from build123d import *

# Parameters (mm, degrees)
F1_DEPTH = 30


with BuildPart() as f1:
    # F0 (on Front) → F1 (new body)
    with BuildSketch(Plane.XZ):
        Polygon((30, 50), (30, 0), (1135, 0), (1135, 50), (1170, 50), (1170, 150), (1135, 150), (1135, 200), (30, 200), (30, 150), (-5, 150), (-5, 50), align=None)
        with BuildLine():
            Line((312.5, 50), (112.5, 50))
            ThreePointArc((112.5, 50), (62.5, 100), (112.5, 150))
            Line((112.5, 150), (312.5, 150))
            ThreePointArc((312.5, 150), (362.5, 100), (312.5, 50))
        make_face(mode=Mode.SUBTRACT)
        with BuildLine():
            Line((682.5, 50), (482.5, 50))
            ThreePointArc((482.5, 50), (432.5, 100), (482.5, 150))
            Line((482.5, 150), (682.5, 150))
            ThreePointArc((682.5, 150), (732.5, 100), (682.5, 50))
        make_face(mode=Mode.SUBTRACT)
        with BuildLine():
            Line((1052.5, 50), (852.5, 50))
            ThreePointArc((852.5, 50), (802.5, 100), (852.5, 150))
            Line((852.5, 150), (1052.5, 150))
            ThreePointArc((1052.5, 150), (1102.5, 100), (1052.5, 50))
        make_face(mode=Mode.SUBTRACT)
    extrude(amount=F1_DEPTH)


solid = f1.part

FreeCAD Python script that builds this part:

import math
import FreeCAD as App
import Part
import Sketcher

V = App.Vector


def add_polygon(sketch, points):
    """Adds a closed chain of lines whose ends are joined by coincident constraints."""
    first, n = sketch.GeometryCount, len(points)
    for a, b in zip(points, points[1:] + points[:1]):
        sketch.addGeometry(Part.LineSegment(App.Vector(*a, 0), App.Vector(*b, 0)), False)
    for i in range(n):
        sketch.addConstraint(Sketcher.Constraint("Coincident", first + i, 2, first + (i + 1) % n, 1))

doc = App.newDocument("Part")
body = doc.addObject("PartDesign::Body", "Body")

# Sketch on XZ plane
sketch1 = body.newObject("Sketcher::SketchObject", "Sketch")
sketch1.AttachmentSupport = (doc.getObject("XZ_Plane"), [""])
sketch1.MapMode = "FlatFace"
add_polygon(sketch1, [(30, 50), (30, 0), (1135, 0), (1135, 50), (1170, 50), (1170, 150), (1135, 150), (1135, 200), (30, 200), (30, 150), (-5, 150), (-5, 50)])  # lines 0-11
sketch1.addGeometry(Part.ArcOfCircle(Part.Circle(V(312.5, 100, 0), V(0, 0, 1), 50), math.radians(-90), math.radians(90)), False)  # 12
sketch1.addGeometry(Part.LineSegment(V(312.5, 50, 0), V(112.5, 50, 0)), False)  # 13
sketch1.addGeometry(Part.ArcOfCircle(Part.Circle(V(112.5, 100, 0), V(0, 0, 1), 50), math.radians(90), math.radians(270)), False)  # 14
sketch1.addGeometry(Part.LineSegment(V(112.5, 150, 0), V(312.5, 150, 0)), False)  # 15
sketch1.addGeometry(Part.ArcOfCircle(Part.Circle(V(682.5, 100, 0), V(0, 0, 1), 50), math.radians(-90), math.radians(90)), False)  # 16
sketch1.addGeometry(Part.LineSegment(V(682.5, 50, 0), V(482.5, 50, 0)), False)  # 17
sketch1.addGeometry(Part.ArcOfCircle(Part.Circle(V(482.5, 100, 0), V(0, 0, 1), 50), math.radians(90), math.radians(270)), False)  # 18
sketch1.addGeometry(Part.LineSegment(V(482.5, 150, 0), V(682.5, 150, 0)), False)  # 19
sketch1.addGeometry(Part.ArcOfCircle(Part.Circle(V(1052.5, 100, 0), V(0, 0, 1), 50), math.radians(-90), math.radians(90)), False)  # 20
sketch1.addGeometry(Part.LineSegment(V(1052.5, 50, 0), V(852.5, 50, 0)), False)  # 21
sketch1.addGeometry(Part.ArcOfCircle(Part.Circle(V(852.5, 100, 0), V(0, 0, 1), 50), math.radians(90), math.radians(270)), False)  # 22
sketch1.addGeometry(Part.LineSegment(V(852.5, 150, 0), V(1052.5, 150, 0)), False)  # 23
sketch1.addConstraint(Sketcher.Constraint("Tangent", 12, 1, 13, 1))
sketch1.addConstraint(Sketcher.Constraint("Tangent", 13, 2, 14, 2))
sketch1.addConstraint(Sketcher.Constraint("Tangent", 14, 1, 15, 1))
sketch1.addConstraint(Sketcher.Constraint("Tangent", 15, 2, 12, 2))
sketch1.addConstraint(Sketcher.Constraint("Tangent", 16, 1, 17, 1))
sketch1.addConstraint(Sketcher.Constraint("Tangent", 17, 2, 18, 2))
sketch1.addConstraint(Sketcher.Constraint("Tangent", 18, 1, 19, 1))
sketch1.addConstraint(Sketcher.Constraint("Tangent", 19, 2, 16, 2))
sketch1.addConstraint(Sketcher.Constraint("Tangent", 20, 1, 21, 1))
sketch1.addConstraint(Sketcher.Constraint("Tangent", 21, 2, 22, 2))
sketch1.addConstraint(Sketcher.Constraint("Tangent", 22, 1, 23, 1))
sketch1.addConstraint(Sketcher.Constraint("Tangent", 23, 2, 20, 2))
sketch1.addConstraint(Sketcher.Constraint("Vertical", 0))
sketch1.addConstraint(Sketcher.Constraint("Horizontal", 1))
sketch1.addConstraint(Sketcher.Constraint("Vertical", 2))
sketch1.addConstraint(Sketcher.Constraint("Horizontal", 3))
sketch1.addConstraint(Sketcher.Constraint("Vertical", 4))
sketch1.addConstraint(Sketcher.Constraint("Horizontal", 5))
sketch1.addConstraint(Sketcher.Constraint("Vertical", 6))
sketch1.addConstraint(Sketcher.Constraint("Horizontal", 7))
sketch1.addConstraint(Sketcher.Constraint("Vertical", 8))
sketch1.addConstraint(Sketcher.Constraint("Horizontal", 9))
sketch1.addConstraint(Sketcher.Constraint("Vertical", 10))
sketch1.addConstraint(Sketcher.Constraint("Horizontal", 11))
sketch1.addConstraint(Sketcher.Constraint("Horizontal", 13))
sketch1.addConstraint(Sketcher.Constraint("Horizontal", 15))
sketch1.addConstraint(Sketcher.Constraint("Horizontal", 17))
sketch1.addConstraint(Sketcher.Constraint("Horizontal", 19))
sketch1.addConstraint(Sketcher.Constraint("Horizontal", 21))
sketch1.addConstraint(Sketcher.Constraint("Horizontal", 23))
sketch1.addConstraint(Sketcher.Constraint("Equal", 14, 16))
sketch1.addConstraint(Sketcher.Constraint("Equal", 18, 20))
sketch1.addConstraint(Sketcher.Constraint("PointOnObject", 0, 2, -1))
sketch1.addConstraint(Sketcher.Constraint("Horizontal", 14, 3, 16, 3))
sketch1.addConstraint(Sketcher.Constraint("Horizontal", 18, 3, 20, 3))
sketch1.addConstraint(Sketcher.Constraint("Horizontal", 5, 2, 8, 2))
sketch1.addConstraint(Sketcher.Constraint("Horizontal", 3, 2, 10, 2))
sketch1.addConstraint(Sketcher.Constraint("Horizontal", 11, 2, 12, 1))
sketch1.addConstraint(Sketcher.Constraint("Horizontal", 9, 2, 14, 1))
sketch1.addConstraint(Sketcher.Constraint("Vertical", 2, 2, 5, 2))
sketch1.addConstraint(Sketcher.Constraint("Vertical", 0, 2, 7, 2))
sketch1.addConstraint(Sketcher.Constraint("Equal", 5, 9))
sketch1.addConstraint(Sketcher.Constraint("Equal", 15, 17))
sketch1.addConstraint(Sketcher.Constraint("Equal", 19, 21))
sketch1.addConstraint(Sketcher.Constraint("Equal", 2, 6))
sketch1.addConstraint(Sketcher.Constraint("Radius", 12, 50.0))
sketch1.addConstraint(Sketcher.Constraint("DistanceX", 1, 1, 1, 2, 1105.0))
sketch1.addConstraint(Sketcher.Constraint("DistanceX", 3, 1, 3, 2, 35.0))
sketch1.addConstraint(Sketcher.Constraint("DistanceX", 13, 2, 13, 1, 200.0))
sketch1.addConstraint(Sketcher.Constraint("DistanceY", 0, 2, 0, 1, 50.0))
sketch1.addConstraint(Sketcher.Constraint("DistanceX", -1, 1, 0, 2, 30.0))
sketch1.addConstraint(Sketcher.Constraint("DistanceX", 12, 3, 16, 3, 370.0))
sketch1.addConstraint(Sketcher.Constraint("DistanceX", 16, 3, 20, 3, 370.0))
sketch1.addConstraint(Sketcher.Constraint("DistanceX", -1, 1, 12, 3, 312.5))
pad1 = body.newObject("PartDesign::Pad", "Pad")
pad1.Profile = sketch1
pad1.Length = 30

doc.recompute()
